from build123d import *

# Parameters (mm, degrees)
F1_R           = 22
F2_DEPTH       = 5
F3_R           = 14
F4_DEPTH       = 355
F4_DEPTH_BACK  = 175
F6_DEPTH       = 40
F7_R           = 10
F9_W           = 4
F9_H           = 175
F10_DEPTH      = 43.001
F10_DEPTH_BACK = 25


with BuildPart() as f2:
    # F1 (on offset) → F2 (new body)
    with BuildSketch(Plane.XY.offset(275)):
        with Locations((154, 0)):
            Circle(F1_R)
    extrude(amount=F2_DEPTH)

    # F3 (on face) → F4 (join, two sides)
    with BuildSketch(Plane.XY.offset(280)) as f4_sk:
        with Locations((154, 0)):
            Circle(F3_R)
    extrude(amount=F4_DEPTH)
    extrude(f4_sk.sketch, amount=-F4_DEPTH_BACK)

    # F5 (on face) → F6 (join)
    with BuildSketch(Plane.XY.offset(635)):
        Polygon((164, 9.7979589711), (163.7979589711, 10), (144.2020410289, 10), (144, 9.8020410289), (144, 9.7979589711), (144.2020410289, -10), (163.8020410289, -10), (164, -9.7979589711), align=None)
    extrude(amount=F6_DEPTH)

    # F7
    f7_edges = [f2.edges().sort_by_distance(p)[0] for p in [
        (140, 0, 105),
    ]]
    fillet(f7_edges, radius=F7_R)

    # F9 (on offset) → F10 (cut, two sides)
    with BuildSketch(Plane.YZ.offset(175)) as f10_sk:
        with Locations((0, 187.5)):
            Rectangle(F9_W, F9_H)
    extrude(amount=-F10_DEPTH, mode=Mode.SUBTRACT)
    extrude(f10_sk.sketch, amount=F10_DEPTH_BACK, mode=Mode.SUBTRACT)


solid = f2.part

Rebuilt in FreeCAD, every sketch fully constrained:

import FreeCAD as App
import Part
import Sketcher
Q = App.Units.Quantity


def edges_at(feature, points):
    """Names of the edges that pass closest to the given points."""
    edges = feature.Shape.Edges
    near = lambda p: min(range(len(edges)), key=lambda i: edges[i].distToShape(Part.Vertex(*p))[0])
    return sorted({f"Edge{near(p) + 1}" for p in points})

doc = App.newDocument("Part")
params = doc.addObject("Spreadsheet::Sheet", "Params")
for row, (alias, value) in enumerate([
    ("sketch1_diameter", "44 mm"),
    ("pad1_length", "5 mm"),
    ("sketch2_diameter", "28 mm"),
    ("pad2_length", "355 mm"),
    ("pad2_length2", "175 mm"),
    ("sketch3_width", "19.6 mm"),
    ("pad3_length", "40 mm"),
    ("fillet_radius", "10 mm"),
    ("sketch4_width", "4 mm"),
    ("sketch4_height", "175 mm"),
], start=1):
    params.set(f"A{row}", alias)
    params.set(f"B{row}", "=" + value)
    params.setAlias(f"B{row}", alias)

body = doc.addObject("PartDesign::Body", "Body")

sketch1 = body.newObject("Sketcher::SketchObject", "Sketch")
sketch1.AttachmentSupport = (doc.getObject("XY_Plane"), [""])
sketch1.MapMode = "FlatFace"
sketch1.AttachmentOffset = App.Placement(App.Vector(0, 0, 275), App.Rotation())
sketch1.addGeometry(Part.Circle(App.Vector(154, 0, 0), App.Vector(0, 0, 1), 22), False)
sketch1.addConstraint(Sketcher.Constraint("PointOnObject", 0, 3, -1))
sketch1.addConstraint(Sketcher.Constraint("Diameter", 0, Q("44 mm")))
sketch1.addConstraint(Sketcher.Constraint("DistanceX", -1, 1, 0, 3, Q("154 mm")))
sketch1.setExpression("Constraints[1]", "Params.sketch1_diameter")
pad1 = body.newObject("PartDesign::Pad", "Pad")
pad1.Profile = sketch1
pad1.setExpression("Length", "Params.pad1_length")

sketch2 = body.newObject("Sketcher::SketchObject", "Sketch001")
sketch2.AttachmentSupport = (doc.getObject("XY_Plane"), [""])
sketch2.MapMode = "FlatFace"
sketch2.AttachmentOffset = App.Placement(App.Vector(0, 0, 280), App.Rotation())
sketch2.addGeometry(Part.Circle(App.Vector(154, 0, 0), App.Vector(0, 0, 1), 14), False)
sketch2.addConstraint(Sketcher.Constraint("PointOnObject", 0, 3, -1))
sketch2.addConstraint(Sketcher.Constraint("Diameter", 0, Q("28 mm")))
sketch2.addConstraint(Sketcher.Constraint("DistanceX", -1, 1, 0, 3, Q("154 mm")))
sketch2.setExpression("Constraints[1]", "Params.sketch2_diameter")
pad2 = body.newObject("PartDesign::Pad", "Pad001")
pad2.Profile = sketch2
pad2.Type = "TwoLengths"
pad2.setExpression("Length", "Params.pad2_length")
pad2.setExpression("Length2", "Params.pad2_length2")

sketch3 = body.newObject("Sketcher::SketchObject", "Sketch002")
sketch3.AttachmentSupport = (doc.getObject("XY_Plane"), [""])
sketch3.MapMode = "FlatFace"
sketch3.AttachmentOffset = App.Placement(App.Vector(0, 0, 635), App.Rotation())
sketch3.addGeometry(Part.LineSegment(App.Vector(164, 9.798, 0), App.Vector(163.798, 10, 0)), False)
sketch3.addGeometry(Part.LineSegment(App.Vector(163.798, 10, 0), App.Vector(144.202, 10, 0)), False)
sketch3.addGeometry(Part.LineSegment(App.Vector(144.202, 10, 0), App.Vector(144, 9.802, 0)), False)
sketch3.addGeometry(Part.LineSegment(App.Vector(144, 9.802, 0), App.Vector(144, 9.798, 0)), False)
sketch3.addGeometry(Part.LineSegment(App.Vector(144, 9.798, 0), App.Vector(144.202, -10, 0)), False)
sketch3.addGeometry(Part.LineSegment(App.Vector(144.202, -10, 0), App.Vector(163.802, -10, 0)), False)
sketch3.addGeometry(Part.LineSegment(App.Vector(163.802, -10, 0), App.Vector(164, -9.798, 0)), False)
sketch3.addGeometry(Part.LineSegment(App.Vector(164, -9.798, 0), App.Vector(164, 9.798, 0)), False)
sketch3.addConstraint(Sketcher.Constraint("Coincident", 0, 2, 1, 1))
sketch3.addConstraint(Sketcher.Constraint("Coincident", 1, 2, 2, 1))
sketch3.addConstraint(Sketcher.Constraint("Coincident", 2, 2, 3, 1))
sketch3.addConstraint(Sketcher.Constraint("Coincident", 3, 2, 4, 1))
sketch3.addConstraint(Sketcher.Constraint("Coincident", 4, 2, 5, 1))
sketch3.addConstraint(Sketcher.Constraint("Coincident", 5, 2, 6, 1))
sketch3.addConstraint(Sketcher.Constraint("Coincident", 6, 2, 7, 1))
sketch3.addConstraint(Sketcher.Constraint("Coincident", 7, 2, 0, 1))
sketch3.addConstraint(Sketcher.Constraint("Horizontal", 1))
sketch3.addConstraint(Sketcher.Constraint("Vertical", 3))
sketch3.addConstraint(Sketcher.Constraint("Horizontal", 5))
sketch3.addConstraint(Sketcher.Constraint("Vertical", 7))
sketch3.addConstraint(Sketcher.Constraint("Symmetric", 1, 2, 4, 2, -1))
sketch3.addConstraint(Sketcher.Constraint("Horizontal", 3, 2, 7, 2))
sketch3.addConstraint(Sketcher.Constraint("Equal", 1, 7))
sketch3.addConstraint(Sketcher.Constraint("Equal", 2, 6))
sketch3.addConstraint(Sketcher.Constraint("Angle", 0, Q("135 deg")))
sketch3.addConstraint(Sketcher.Constraint("DistanceX", 5, 1, 5, 2, Q("19.6 mm")))
sketch3.addConstraint(Sketcher.Constraint("DistanceY", -1, 1, 0, 2, Q("10 mm")))
sketch3.addConstraint(Sketcher.Constraint("DistanceX", -1, 1, 2, 2, Q("144 mm")))
sketch3.addConstraint(Sketcher.Constraint("DistanceX", -1, 1, 6, 2, Q("164 mm")))
sketch3.addConstraint(Sketcher.Constraint("Distance", 0, Q("0.285729 mm")))
sketch3.addConstraint(Sketcher.Constraint("Distance", 4, Q("19.79899 mm")))
sketch3.setExpression("Constraints[17]", "Params.sketch3_width")
pad3 = body.newObject("PartDesign::Pad", "Pad002")
pad3.Profile = sketch3
pad3.setExpression("Length", "Params.pad3_length")
doc.recompute()

fillet = body.newObject("PartDesign::Fillet", "Fillet")
fillet.Base = (pad3, edges_at(pad3, [(140, 0, 105)]))
fillet.setExpression("Radius", "Params.fillet_radius")

sketch4 = body.newObject("Sketcher::SketchObject", "Sketch003")
sketch4.AttachmentSupport = (doc.getObject("YZ_Plane"), [""])
sketch4.MapMode = "FlatFace"
sketch4.AttachmentOffset = App.Placement(App.Vector(0, 0, 175), App.Rotation())
sketch4.addGeometry(Part.LineSegment(App.Vector(-2, 275, 0), App.Vector(-2, 100, 0)), False)
sketch4.addGeometry(Part.LineSegment(App.Vector(-2, 100, 0), App.Vector(2, 100, 0)), False)
sketch4.addGeometry(Part.LineSegment(App.Vector(2, 100, 0), App.Vector(2, 275, 0)), False)
sketch4.addGeometry(Part.LineSegment(App.Vector(2, 275, 0), App.Vector(-2, 275, 0)), False)
sketch4.addConstraint(Sketcher.Constraint("Coincident", 0, 2, 1, 1))
sketch4.addConstraint(Sketcher.Constraint("Coincident", 1, 2, 2, 1))
sketch4.addConstraint(Sketcher.Constraint("Coincident", 2, 2, 3, 1))
sketch4.addConstraint(Sketcher.Constraint("Coincident", 3, 2, 0, 1))
sketch4.addConstraint(Sketcher.Constraint("Vertical", 0))
sketch4.addConstraint(Sketcher.Constraint("Horizontal", 1))
sketch4.addConstraint(Sketcher.Constraint("Vertical", 2))
sketch4.addConstraint(Sketcher.Constraint("Horizontal", 3))
sketch4.addConstraint(Sketcher.Constraint("DistanceX", 1, 1, 1, 2, Q("4 mm")))
sketch4.addConstraint(Sketcher.Constraint("DistanceY", 0, 2, 0, 1, Q("175 mm")))
sketch4.addConstraint(Sketcher.Constraint("DistanceX", 0, 2, -1, 1, Q("2 mm")))
sketch4.addConstraint(Sketcher.Constraint("DistanceY", -1, 1, 0, 2, Q("100 mm")))
sketch4.setExpression("Constraints[8]", "Params.sketch4_width")
sketch4.setExpression("Constraints[9]", "Params.sketch4_height")
pocket1 = body.newObject("PartDesign::Pocket", "Pocket")
pocket1.Profile = sketch4
pocket1.Type = "ThroughAll"
pocket1.Midplane = True

doc.recompute()
